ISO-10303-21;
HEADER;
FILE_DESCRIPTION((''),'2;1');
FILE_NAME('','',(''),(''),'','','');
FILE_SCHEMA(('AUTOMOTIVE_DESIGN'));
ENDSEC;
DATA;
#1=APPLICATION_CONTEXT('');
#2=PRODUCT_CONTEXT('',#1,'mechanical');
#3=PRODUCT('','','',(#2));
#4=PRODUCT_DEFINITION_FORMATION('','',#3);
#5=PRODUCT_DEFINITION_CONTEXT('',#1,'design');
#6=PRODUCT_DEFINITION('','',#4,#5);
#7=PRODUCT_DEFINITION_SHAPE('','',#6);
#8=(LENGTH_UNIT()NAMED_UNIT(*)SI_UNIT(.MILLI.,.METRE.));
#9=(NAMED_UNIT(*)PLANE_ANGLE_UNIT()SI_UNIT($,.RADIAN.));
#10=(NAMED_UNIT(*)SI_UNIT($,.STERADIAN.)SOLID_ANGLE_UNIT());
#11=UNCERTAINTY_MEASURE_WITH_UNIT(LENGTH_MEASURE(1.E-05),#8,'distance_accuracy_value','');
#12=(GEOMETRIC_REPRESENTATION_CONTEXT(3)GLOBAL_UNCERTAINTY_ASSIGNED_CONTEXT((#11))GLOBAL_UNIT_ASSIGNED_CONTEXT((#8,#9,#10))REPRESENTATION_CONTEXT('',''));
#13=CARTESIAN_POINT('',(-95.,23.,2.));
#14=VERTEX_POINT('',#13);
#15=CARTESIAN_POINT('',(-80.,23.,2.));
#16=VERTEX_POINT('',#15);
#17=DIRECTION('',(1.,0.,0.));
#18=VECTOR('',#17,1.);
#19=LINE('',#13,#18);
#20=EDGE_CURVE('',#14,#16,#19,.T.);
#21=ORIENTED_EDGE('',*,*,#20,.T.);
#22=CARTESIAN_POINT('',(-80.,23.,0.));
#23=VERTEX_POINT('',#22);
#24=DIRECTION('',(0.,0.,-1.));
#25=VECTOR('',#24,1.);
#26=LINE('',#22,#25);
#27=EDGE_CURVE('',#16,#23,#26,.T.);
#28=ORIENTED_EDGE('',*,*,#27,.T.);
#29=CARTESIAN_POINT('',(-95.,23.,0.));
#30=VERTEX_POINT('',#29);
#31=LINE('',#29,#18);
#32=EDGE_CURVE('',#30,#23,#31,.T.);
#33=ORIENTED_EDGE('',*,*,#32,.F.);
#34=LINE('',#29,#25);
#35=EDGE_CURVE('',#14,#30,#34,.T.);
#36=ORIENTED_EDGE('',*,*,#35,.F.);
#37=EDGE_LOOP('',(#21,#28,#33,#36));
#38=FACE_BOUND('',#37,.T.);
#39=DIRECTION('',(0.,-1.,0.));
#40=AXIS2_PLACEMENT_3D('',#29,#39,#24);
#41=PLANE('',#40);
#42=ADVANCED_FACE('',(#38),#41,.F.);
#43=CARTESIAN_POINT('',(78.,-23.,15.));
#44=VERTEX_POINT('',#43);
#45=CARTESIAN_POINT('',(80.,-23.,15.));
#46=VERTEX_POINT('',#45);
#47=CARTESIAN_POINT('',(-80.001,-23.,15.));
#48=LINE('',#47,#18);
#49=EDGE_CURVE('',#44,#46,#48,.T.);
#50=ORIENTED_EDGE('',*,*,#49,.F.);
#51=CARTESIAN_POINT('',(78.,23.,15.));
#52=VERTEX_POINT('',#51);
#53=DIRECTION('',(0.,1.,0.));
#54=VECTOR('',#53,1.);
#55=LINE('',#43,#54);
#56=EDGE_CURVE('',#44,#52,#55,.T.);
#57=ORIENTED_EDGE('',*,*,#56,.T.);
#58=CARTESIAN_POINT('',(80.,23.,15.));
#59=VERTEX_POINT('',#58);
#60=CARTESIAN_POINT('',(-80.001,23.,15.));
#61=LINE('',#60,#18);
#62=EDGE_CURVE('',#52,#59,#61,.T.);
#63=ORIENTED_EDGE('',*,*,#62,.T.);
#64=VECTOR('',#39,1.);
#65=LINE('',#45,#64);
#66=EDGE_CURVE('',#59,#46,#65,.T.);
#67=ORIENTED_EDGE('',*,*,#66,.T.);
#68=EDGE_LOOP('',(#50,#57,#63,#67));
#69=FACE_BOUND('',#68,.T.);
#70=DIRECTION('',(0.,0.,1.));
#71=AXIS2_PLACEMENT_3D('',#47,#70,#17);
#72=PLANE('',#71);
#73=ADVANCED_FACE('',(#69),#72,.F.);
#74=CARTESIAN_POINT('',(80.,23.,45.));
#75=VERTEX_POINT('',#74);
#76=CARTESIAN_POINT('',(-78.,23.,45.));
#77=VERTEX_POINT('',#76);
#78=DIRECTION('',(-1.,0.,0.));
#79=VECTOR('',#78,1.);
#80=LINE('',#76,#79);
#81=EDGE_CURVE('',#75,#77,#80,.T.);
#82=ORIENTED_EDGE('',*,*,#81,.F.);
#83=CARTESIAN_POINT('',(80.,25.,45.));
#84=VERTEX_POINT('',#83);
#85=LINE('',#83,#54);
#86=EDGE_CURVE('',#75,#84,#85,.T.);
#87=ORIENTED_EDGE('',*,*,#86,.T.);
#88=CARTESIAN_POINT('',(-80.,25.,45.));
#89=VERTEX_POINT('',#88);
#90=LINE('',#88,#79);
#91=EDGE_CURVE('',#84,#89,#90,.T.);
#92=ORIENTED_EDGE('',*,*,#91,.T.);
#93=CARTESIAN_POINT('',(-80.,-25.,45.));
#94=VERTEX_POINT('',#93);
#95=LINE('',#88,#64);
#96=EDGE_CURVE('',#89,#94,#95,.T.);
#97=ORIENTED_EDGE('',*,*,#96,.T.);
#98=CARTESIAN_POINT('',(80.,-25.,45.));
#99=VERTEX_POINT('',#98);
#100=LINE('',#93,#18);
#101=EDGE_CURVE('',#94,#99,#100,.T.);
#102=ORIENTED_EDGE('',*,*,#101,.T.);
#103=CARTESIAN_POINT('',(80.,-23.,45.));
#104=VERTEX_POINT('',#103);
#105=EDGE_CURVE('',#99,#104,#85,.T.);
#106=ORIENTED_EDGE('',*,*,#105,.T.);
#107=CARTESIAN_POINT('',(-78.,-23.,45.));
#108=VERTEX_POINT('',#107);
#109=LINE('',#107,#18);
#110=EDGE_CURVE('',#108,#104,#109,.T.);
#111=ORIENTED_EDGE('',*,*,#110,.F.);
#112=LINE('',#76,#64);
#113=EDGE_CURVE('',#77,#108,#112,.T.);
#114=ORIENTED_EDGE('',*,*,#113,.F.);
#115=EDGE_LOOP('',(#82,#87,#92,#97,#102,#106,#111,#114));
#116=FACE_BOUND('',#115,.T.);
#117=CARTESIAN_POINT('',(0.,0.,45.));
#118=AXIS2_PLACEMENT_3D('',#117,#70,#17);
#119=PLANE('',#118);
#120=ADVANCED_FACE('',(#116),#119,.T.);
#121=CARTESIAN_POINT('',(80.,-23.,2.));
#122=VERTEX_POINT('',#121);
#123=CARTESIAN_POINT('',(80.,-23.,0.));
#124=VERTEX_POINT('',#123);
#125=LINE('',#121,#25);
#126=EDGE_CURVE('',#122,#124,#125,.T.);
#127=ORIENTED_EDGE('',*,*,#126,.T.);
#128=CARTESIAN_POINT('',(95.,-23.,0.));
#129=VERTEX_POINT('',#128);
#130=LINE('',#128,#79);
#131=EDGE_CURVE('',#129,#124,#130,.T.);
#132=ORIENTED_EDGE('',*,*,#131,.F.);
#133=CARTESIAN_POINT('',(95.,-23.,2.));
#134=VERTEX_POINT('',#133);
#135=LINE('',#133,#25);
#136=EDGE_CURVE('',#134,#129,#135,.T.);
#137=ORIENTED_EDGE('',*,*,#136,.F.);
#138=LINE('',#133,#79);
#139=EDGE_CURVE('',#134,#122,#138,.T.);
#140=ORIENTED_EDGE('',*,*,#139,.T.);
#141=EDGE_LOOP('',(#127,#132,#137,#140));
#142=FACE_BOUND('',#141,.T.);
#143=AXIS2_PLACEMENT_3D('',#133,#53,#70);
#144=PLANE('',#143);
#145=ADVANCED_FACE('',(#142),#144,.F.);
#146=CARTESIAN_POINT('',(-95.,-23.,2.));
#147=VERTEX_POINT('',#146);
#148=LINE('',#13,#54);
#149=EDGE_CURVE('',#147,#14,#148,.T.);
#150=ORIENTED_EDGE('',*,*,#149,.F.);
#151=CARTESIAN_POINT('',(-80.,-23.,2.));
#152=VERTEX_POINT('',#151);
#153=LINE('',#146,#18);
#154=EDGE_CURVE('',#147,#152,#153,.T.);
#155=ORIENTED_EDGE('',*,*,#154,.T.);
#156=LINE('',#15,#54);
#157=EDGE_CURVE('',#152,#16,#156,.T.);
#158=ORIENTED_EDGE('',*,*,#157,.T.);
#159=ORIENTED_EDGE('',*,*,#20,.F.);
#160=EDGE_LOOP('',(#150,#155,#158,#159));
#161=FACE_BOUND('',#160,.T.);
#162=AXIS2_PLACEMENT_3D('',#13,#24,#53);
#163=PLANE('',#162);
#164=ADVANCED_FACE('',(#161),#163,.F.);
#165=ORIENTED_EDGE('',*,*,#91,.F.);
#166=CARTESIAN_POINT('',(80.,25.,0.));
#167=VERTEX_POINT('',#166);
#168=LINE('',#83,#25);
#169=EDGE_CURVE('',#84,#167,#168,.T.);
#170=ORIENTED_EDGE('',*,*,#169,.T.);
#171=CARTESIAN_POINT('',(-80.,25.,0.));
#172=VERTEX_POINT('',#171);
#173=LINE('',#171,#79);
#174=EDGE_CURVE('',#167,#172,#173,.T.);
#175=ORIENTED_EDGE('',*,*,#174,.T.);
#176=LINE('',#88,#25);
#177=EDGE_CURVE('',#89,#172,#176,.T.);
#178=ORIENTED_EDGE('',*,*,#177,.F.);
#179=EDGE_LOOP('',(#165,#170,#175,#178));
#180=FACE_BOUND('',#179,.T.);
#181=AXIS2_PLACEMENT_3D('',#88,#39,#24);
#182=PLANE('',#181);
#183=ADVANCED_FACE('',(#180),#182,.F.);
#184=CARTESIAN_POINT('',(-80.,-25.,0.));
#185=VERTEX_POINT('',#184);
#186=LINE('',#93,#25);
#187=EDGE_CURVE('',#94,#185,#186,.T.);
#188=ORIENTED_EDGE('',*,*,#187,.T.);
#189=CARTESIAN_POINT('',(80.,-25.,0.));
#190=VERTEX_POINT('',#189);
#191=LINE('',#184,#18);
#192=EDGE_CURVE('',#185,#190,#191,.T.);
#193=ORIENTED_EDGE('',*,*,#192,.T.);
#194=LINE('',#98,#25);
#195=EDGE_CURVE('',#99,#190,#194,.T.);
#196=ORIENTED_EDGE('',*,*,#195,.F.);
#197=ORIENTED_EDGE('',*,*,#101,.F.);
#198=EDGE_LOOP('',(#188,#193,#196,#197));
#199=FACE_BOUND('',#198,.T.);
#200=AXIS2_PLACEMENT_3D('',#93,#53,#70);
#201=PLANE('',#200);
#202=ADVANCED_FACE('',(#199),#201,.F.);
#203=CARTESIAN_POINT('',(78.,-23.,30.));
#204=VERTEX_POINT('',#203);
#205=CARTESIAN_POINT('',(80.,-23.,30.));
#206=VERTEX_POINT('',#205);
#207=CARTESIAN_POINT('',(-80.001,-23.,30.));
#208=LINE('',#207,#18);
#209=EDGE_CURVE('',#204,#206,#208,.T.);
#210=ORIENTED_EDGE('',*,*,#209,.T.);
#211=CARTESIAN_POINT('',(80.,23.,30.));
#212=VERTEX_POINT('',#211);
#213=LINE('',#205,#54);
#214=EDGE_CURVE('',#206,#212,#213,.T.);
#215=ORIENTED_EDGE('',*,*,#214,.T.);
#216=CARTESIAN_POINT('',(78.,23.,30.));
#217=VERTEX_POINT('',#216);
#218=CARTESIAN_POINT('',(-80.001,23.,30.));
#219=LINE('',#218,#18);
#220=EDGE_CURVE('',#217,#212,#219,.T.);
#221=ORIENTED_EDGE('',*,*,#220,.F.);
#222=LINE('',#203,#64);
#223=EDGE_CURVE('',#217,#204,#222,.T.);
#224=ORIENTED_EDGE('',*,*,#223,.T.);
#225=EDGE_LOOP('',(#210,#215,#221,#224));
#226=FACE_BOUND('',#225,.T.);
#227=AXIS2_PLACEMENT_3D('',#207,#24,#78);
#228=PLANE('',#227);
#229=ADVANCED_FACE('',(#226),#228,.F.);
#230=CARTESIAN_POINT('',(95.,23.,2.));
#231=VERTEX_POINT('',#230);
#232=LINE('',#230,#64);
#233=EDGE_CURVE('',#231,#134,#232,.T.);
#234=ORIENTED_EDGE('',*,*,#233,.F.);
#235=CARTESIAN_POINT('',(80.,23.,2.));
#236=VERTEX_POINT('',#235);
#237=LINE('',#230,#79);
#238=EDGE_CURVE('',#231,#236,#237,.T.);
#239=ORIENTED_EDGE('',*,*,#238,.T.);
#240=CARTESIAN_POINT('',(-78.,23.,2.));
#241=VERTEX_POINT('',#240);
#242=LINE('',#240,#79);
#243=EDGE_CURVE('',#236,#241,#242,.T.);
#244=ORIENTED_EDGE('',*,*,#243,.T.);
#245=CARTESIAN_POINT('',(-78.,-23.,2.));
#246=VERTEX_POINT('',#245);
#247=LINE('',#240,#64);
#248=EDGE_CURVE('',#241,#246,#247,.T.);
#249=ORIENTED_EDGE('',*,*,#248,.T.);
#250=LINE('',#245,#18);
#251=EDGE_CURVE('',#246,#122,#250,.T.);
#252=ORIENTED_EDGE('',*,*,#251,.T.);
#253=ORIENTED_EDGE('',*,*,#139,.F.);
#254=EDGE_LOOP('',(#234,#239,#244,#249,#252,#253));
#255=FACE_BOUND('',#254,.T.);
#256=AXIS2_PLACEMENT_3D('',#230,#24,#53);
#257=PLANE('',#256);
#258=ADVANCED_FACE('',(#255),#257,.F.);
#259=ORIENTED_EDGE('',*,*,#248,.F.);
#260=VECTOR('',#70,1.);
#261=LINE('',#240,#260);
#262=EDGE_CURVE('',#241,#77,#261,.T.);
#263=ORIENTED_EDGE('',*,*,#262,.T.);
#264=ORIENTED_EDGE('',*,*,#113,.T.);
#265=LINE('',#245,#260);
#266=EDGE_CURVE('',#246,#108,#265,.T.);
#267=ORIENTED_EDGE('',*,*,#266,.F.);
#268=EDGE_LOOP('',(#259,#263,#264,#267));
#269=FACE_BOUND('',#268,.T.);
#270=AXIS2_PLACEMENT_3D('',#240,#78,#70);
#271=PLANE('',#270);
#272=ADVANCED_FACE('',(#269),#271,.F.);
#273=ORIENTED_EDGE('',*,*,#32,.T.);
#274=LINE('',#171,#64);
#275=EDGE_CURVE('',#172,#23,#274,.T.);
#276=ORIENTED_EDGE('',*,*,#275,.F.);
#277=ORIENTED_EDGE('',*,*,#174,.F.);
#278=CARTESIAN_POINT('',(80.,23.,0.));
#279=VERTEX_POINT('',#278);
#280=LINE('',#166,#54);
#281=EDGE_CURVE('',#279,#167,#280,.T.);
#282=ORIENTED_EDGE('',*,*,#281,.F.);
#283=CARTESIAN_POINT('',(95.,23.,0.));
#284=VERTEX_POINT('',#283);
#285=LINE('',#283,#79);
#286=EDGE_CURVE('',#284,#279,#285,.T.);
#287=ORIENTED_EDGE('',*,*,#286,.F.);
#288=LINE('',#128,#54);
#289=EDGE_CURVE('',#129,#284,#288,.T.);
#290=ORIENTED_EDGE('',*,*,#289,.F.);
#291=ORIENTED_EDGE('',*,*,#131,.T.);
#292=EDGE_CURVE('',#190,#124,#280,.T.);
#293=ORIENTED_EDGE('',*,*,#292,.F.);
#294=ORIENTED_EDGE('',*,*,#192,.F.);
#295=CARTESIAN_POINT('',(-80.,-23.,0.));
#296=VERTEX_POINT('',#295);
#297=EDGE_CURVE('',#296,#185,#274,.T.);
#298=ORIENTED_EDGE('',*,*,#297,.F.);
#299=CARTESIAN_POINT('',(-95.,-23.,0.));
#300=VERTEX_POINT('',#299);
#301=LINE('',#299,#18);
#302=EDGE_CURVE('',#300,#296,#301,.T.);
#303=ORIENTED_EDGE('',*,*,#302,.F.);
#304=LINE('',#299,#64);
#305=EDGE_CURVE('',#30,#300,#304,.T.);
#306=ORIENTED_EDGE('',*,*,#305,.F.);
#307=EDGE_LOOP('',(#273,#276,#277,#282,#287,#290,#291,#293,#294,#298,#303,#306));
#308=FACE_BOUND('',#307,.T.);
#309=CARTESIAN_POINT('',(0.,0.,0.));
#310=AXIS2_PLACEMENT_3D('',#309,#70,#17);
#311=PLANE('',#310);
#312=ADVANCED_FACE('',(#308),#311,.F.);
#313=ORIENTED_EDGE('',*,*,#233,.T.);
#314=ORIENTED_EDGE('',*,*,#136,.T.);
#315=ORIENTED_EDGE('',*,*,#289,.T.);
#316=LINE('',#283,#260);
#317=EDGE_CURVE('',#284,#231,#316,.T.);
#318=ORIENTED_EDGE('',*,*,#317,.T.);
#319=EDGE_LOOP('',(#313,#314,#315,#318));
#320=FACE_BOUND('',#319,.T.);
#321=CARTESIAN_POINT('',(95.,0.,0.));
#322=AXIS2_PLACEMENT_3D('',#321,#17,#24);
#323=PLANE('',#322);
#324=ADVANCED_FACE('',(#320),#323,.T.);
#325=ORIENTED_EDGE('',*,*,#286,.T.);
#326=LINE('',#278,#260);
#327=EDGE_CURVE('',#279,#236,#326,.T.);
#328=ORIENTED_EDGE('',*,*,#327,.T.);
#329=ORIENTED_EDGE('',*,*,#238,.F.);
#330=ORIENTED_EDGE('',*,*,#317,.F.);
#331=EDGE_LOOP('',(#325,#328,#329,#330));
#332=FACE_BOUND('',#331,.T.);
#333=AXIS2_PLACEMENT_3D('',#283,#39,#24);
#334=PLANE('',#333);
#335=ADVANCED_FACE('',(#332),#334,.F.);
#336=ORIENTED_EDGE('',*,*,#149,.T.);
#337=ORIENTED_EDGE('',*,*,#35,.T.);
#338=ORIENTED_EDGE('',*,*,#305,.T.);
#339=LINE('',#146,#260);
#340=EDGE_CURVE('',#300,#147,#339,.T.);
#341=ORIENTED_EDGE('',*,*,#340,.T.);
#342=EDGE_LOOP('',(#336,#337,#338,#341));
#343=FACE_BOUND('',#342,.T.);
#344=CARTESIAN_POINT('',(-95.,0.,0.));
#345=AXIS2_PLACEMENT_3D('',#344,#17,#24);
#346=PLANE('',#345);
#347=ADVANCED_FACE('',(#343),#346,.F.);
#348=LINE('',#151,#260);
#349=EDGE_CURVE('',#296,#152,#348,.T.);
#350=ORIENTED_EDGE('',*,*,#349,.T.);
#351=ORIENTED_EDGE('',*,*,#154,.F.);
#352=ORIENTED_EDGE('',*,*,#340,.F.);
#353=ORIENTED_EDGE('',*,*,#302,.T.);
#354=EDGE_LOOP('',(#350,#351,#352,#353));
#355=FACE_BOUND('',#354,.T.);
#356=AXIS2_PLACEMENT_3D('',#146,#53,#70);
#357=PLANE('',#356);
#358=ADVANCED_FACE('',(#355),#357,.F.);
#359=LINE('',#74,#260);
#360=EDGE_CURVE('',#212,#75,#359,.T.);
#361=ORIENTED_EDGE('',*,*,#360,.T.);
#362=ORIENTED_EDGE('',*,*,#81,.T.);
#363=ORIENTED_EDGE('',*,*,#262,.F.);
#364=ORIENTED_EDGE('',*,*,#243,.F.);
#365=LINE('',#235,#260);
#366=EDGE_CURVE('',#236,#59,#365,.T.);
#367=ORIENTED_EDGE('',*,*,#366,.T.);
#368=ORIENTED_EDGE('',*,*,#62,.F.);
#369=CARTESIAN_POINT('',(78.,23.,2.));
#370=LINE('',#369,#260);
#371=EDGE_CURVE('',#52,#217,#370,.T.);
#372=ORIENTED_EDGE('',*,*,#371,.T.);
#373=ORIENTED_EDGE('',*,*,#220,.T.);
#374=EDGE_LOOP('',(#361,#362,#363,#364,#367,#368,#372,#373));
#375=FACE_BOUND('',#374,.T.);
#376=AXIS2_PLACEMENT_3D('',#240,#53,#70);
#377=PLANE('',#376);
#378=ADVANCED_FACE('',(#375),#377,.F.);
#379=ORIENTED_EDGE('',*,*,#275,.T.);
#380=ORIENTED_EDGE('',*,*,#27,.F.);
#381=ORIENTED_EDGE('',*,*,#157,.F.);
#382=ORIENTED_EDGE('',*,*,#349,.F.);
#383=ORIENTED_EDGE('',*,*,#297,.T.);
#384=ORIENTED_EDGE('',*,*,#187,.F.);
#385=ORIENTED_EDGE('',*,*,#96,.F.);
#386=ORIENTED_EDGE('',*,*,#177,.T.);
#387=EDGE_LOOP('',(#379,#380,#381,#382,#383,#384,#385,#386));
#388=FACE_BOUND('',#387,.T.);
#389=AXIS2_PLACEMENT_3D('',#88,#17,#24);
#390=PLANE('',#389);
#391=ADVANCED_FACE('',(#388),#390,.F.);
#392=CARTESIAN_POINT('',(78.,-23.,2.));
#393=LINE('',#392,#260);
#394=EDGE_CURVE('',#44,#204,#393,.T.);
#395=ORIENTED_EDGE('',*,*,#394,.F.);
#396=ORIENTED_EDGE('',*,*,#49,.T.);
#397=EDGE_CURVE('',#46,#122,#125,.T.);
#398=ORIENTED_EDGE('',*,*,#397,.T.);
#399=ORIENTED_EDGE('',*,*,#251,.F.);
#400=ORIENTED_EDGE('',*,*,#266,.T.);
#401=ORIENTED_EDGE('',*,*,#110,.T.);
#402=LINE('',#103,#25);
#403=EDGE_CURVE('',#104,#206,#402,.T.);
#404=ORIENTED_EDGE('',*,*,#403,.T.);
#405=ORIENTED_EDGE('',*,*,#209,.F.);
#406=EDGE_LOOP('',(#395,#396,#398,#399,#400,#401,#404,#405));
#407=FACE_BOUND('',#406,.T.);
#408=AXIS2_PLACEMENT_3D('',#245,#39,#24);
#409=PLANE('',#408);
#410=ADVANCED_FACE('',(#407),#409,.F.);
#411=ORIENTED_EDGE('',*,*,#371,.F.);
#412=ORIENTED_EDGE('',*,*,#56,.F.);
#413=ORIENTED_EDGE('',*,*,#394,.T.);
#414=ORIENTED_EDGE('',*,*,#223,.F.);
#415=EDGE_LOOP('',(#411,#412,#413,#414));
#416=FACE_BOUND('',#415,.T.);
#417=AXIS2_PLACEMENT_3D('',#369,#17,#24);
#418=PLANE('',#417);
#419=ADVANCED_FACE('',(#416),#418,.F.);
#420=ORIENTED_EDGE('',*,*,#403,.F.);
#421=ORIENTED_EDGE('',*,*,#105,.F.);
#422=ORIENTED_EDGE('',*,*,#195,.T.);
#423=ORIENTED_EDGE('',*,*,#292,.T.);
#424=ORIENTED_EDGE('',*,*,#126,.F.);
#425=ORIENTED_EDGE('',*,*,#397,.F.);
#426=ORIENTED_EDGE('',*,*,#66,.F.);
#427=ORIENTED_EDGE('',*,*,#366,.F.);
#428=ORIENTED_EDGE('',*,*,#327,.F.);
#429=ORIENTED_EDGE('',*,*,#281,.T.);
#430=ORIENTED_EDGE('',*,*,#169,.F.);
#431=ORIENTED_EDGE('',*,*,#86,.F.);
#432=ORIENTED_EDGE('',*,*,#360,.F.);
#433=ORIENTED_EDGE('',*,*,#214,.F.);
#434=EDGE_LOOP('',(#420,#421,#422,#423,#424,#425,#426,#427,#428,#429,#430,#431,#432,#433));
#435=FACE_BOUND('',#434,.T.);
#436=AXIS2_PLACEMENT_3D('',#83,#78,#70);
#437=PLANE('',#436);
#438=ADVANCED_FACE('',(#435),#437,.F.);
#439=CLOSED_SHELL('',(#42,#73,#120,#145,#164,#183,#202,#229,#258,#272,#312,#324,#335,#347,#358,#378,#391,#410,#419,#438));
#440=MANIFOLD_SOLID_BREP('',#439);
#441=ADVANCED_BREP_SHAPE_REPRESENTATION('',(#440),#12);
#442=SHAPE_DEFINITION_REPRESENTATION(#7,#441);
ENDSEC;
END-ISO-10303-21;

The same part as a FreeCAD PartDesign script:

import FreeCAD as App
import Part
import Sketcher
from FreeCAD import Vector


def add_polygon(sketch, points):
    """Adds a closed chain of lines whose ends are joined by coincident constraints."""
    first, n = sketch.GeometryCount, len(points)
    for a, b in zip(points, points[1:] + points[:1]):
        sketch.addGeometry(Part.LineSegment(App.Vector(*a, 0), App.Vector(*b, 0)), False)
    for i in range(n):
        sketch.addConstraint(Sketcher.Constraint("Coincident", first + i, 2, first + (i + 1) % n, 1))

doc = App.newDocument("Part")
body = doc.addObject("PartDesign::Body", "Body")

# Sketch on XY plane
sketch1 = doc.addObject("Sketcher::SketchObject", "Sketch")
body.addObject(sketch1)
sketch1.AttachmentSupport = (doc.XY_Plane, [""])
sketch1.MapMode = "FlatFace"
add_polygon(sketch1, [(-80, 25), (-80, -25), (80, -25), (80, 25)])  # lines 0-3
sketch1.addConstraint([
    Sketcher.Constraint("Vertical", 0),
    Sketcher.Constraint("Horizontal", 1),
    Sketcher.Constraint("Vertical", 2),
    Sketcher.Constraint("Horizontal", 3),
    Sketcher.Constraint("Symmetric", 0, 2, 2, 2, -1, 1),
    Sketcher.Constraint("DistanceX", 1, 1, 1, 2, 160.0),
    Sketcher.Constraint("DistanceY", 0, 2, 0, 1, 50.0),
])
pad1 = doc.addObject("PartDesign::Pad", "Pad")
body.addObject(pad1)
pad1.Profile = sketch1
pad1.Length = 45

# Sketch on YZ plane
sketch2 = doc.addObject("Sketcher::SketchObject", "Sketch001")
body.addObject(sketch2)
sketch2.AttachmentSupport = (doc.YZ_Plane, [""])
sketch2.MapMode = "FlatFace"
sketch2.AttachmentOffset = App.Placement(Vector(0, 0, 80), App.Rotation())
add_polygon(sketch2, [(23, 2), (-23, 2), (-23, 0), (23, 0)])  # lines 0-3
sketch2.addConstraint([
    Sketcher.Constraint("Horizontal", 0),
    Sketcher.Constraint("Vertical", 1),
    Sketcher.Constraint("Horizontal", 2),
    Sketcher.Constraint("Vertical", 3),
    Sketcher.Constraint("Symmetric", 1, 2, 2, 2, -1, 1),
    Sketcher.Constraint("DistanceX", 0, 2, 0, 1, 46.0),
    Sketcher.Constraint("DistanceY", 1, 2, 1, 1, 2.0),
])
pad2 = doc.addObject("PartDesign::Pad", "Pad001")
body.addObject(pad2)
pad2.Profile = sketch2
pad2.Length = 15

# Sketch on XY plane
sketch3 = doc.addObject("Sketcher::SketchObject", "Sketch002")
body.addObject(sketch3)
sketch3.AttachmentSupport = (doc.XY_Plane, [""])
sketch3.MapMode = "FlatFace"
sketch3.AttachmentOffset = App.Placement(Vector(0, 0, 45), App.Rotation())
add_polygon(sketch3, [(-78, 23), (-78, -23), (78, -23), (78, 23)])  # lines 0-3
sketch3.addConstraint([
    Sketcher.Constraint("Vertical", 0),
    Sketcher.Constraint("Horizontal", 1),
    Sketcher.Constraint("Vertical", 2),
    Sketcher.Constraint("Horizontal", 3),
    Sketcher.Constraint("Symmetric", 0, 2, 2, 2, -1, 1),
    Sketcher.Constraint("DistanceX", 1, 1, 1, 2, 156.0),
    Sketcher.Constraint("DistanceY", 0, 2, 0, 1, 46.0),
])
pocket1 = doc.addObject("PartDesign::Pocket", "Pocket")
body.addObject(pocket1)
pocket1.Profile = sketch3
pocket1.Length = 43

# Sketch on YZ plane
sketch4 = doc.addObject("Sketcher::SketchObject", "Sketch003")
body.addObject(sketch4)
sketch4.AttachmentSupport = (doc.YZ_Plane, [""])
sketch4.MapMode = "FlatFace"
sketch4.AttachmentOffset = App.Placement(Vector(0, 0, 80), App.Rotation())
add_polygon(sketch4, [(23, 45), (-23, 45), (-23, 30), (23, 30)])  # lines 0-3
sketch4.addConstraint([
    Sketcher.Constraint("Horizontal", 0),
    Sketcher.Constraint("Vertical", 1),
    Sketcher.Constraint("Horizontal", 2),
    Sketcher.Constraint("Vertical", 3),
    Sketcher.Constraint("DistanceX", 0, 2, 0, 1, 46.0),
    Sketcher.Constraint("DistanceY", 1, 2, 1, 1, 15.0),
    Sketcher.Constraint("DistanceX", 0, 2, -1, 1, 23.0),
    Sketcher.Constraint("DistanceY", -1, 1, 0, 2, 45.0),
])
pocket2 = doc.addObject("PartDesign::Pocket", "Pocket001")
body.addObject(pocket2)
pocket2.Profile = sketch4
pocket2.Type = "UpToFirst"

# Sketch on YZ plane
sketch5 = doc.addObject("Sketcher::SketchObject", "Sketch004")
body.addObject(sketch5)
sketch5.AttachmentSupport = (doc.YZ_Plane, [""])
sketch5.MapMode = "FlatFace"
sketch5.AttachmentOffset = App.Placement(Vector(0, 0, 80), App.Rotation())
add_polygon(sketch5, [(23, 15), (-23, 15), (-23, 2), (23, 2)])  # lines 0-3
sketch5.addConstraint([
    Sketcher.Constraint("Horizontal", 0),
    Sketcher.Constraint("Vertical", 1),
    Sketcher.Constraint("Horizontal", 2),
    Sketcher.Constraint("Vertical", 3),
    Sketcher.Constraint("DistanceX", 0, 2, 0, 1, 46.0),
    Sketcher.Constraint("DistanceY", 1, 2, 1, 1, 13.0),
    Sketcher.Constraint("DistanceX", 0, 2, -1, 1, 23.0),
    Sketcher.Constraint("DistanceY", -1, 1, 0, 2, 15.0),
])
pocket3 = doc.addObject("PartDesign::Pocket", "Pocket002")
body.addObject(pocket3)
pocket3.Profile = sketch5
pocket3.Type = "UpToFirst"

# Sketch on YZ plane
sketch6 = doc.addObject("Sketcher::SketchObject", "Sketch005")
body.addObject(sketch6)
sketch6.AttachmentSupport = (doc.YZ_Plane, [""])
sketch6.MapMode = "FlatFace"
sketch6.AttachmentOffset = App.Placement(Vector(0, 0, -80), App.Rotation())
add_polygon(sketch6, [(23, 0), (-23, 0), (-23, 2), (23, 2)])  # lines 0-3
sketch6.addConstraint([
    Sketcher.Constraint("Horizontal", 0),
    Sketcher.Constraint("Vertical", 1),
    Sketcher.Constraint("Horizontal", 2),
    Sketcher.Constraint("Vertical", 3),
    Sketcher.Constraint("Symmetric", 0, 2, 3, 2, -1, 1),
    Sketcher.Constraint("DistanceX", 0, 2, 0, 1, 46.0),
    Sketcher.Constraint("DistanceY", 1, 1, 1, 2, 2.0),
])
pad3 = doc.addObject("PartDesign::Pad", "Pad002")
body.addObject(pad3)
pad3.Profile = sketch6
pad3.Length = 15
pad3.Reversed = True

doc.recompute()
